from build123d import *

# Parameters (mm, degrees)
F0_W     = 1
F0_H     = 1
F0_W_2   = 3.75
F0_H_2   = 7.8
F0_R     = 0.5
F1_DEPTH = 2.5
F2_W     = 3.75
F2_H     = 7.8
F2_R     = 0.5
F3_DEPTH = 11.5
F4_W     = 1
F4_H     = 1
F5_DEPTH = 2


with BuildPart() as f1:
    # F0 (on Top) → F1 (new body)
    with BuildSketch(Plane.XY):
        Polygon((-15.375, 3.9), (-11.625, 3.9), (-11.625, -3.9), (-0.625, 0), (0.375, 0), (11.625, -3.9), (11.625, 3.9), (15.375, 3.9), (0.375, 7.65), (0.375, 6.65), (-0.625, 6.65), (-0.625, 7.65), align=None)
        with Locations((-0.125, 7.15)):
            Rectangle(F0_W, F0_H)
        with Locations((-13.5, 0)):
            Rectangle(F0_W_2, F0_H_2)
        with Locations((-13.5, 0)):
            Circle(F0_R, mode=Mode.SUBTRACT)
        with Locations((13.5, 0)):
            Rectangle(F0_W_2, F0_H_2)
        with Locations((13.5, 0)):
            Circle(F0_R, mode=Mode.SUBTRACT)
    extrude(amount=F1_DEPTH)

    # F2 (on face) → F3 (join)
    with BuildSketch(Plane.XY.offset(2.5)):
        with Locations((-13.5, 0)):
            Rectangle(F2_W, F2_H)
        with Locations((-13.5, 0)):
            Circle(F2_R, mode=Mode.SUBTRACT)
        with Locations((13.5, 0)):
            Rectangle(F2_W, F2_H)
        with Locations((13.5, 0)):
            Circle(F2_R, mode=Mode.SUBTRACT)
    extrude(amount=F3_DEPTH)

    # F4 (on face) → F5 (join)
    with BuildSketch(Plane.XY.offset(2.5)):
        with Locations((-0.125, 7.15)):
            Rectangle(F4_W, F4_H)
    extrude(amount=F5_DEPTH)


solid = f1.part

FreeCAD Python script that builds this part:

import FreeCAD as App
import Part
import Sketcher
from FreeCAD import Vector
Q = App.Units.Quantity

doc = App.newDocument("Part")
body = doc.addObject("PartDesign::Body", "Body")

sketch1 = body.newObject("Sketcher::SketchObject", "Sketch")
sketch1.AttachmentSupport = (doc.getObject("XY_Plane"), [""])
sketch1.MapMode = "FlatFace"
sketch1.addGeometry([
    Part.LineSegment(Vector(-11.625, -3.9, 0), Vector(-0.625, 0, 0)),
    Part.LineSegment(Vector(-0.625, 0, 0), Vector(0.375, 0, 0)),
    Part.LineSegment(Vector(0.375, 0, 0), Vector(11.625, -3.9, 0)),
    Part.LineSegment(Vector(11.625, -3.9, 0), Vector(15.375, -3.9, 0)),
    Part.LineSegment(Vector(15.375, -3.9, 0), Vector(15.375, 3.9, 0)),
    Part.LineSegment(Vector(15.375, 3.9, 0), Vector(0.375, 7.65, 0)),
    Part.LineSegment(Vector(0.375, 7.65, 0), Vector(-0.625, 7.65, 0)),
    Part.LineSegment(Vector(-0.625, 7.65, 0), Vector(-15.375, 3.9, 0)),
    Part.LineSegment(Vector(-15.375, 3.9, 0), Vector(-15.375, -3.9, 0)),
    Part.LineSegment(Vector(-15.375, -3.9, 0), Vector(-11.625, -3.9, 0)),
    Part.Circle(Vector(-13.5, 0, 0), Vector(0, 0, 1), 0.5),
    Part.Circle(Vector(13.5, 0, 0), Vector(0, 0, 1), 0.5),
], False)
sketch1.addConstraint([
    Sketcher.Constraint("Coincident", 0, 2, 1, 1),
    Sketcher.Constraint("Coincident", 1, 2, 2, 1),
    Sketcher.Constraint("Coincident", 2, 2, 3, 1),
    Sketcher.Constraint("Coincident", 3, 2, 4, 1),
    Sketcher.Constraint("Coincident", 4, 2, 5, 1),
    Sketcher.Constraint("Coincident", 5, 2, 6, 1),
    Sketcher.Constraint("Coincident", 6, 2, 7, 1),
    Sketcher.Constraint("Coincident", 7, 2, 8, 1),
    Sketcher.Constraint("Coincident", 8, 2, 9, 1),
    Sketcher.Constraint("Coincident", 9, 2, 0, 1),
    Sketcher.Constraint("Horizontal", 1),
    Sketcher.Constraint("Horizontal", 3),
    Sketcher.Constraint("Vertical", 4),
    Sketcher.Constraint("Horizontal", 6),
    Sketcher.Constraint("Vertical", 8),
    Sketcher.Constraint("Horizontal", 9),
    Sketcher.Constraint("Equal", 10, 11),
    Sketcher.Constraint("Symmetric", 10, 3, 11, 3, -1, 1),
    Sketcher.Constraint("Symmetric", 3, 2, 7, 2, -1, 1),
    Sketcher.Constraint("Symmetric", 2, 2, 9, 2, -2),
    Sketcher.Constraint("PointOnObject", 10, 3, -1),
    Sketcher.Constraint("PointOnObject", 0, 2, -1),
    Sketcher.Constraint("Horizontal", 4, 2, 7, 2),
    Sketcher.Constraint("Vertical", 1, 2, 5, 2),
    Sketcher.Constraint("Vertical", 0, 2, 6, 2),
    Sketcher.Constraint("Diameter", 10, Q("1 mm")),
    Sketcher.Constraint("DistanceX", 1, 1, 1, 2, Q("1 mm")),
    Sketcher.Constraint("DistanceY", 4, 1, 4, 2, Q("7.8 mm")),
    Sketcher.Constraint("DistanceX", 10, 3, 11, 3, Q("27 mm")),
    Sketcher.Constraint("DistanceX", 1, 2, 3, 2, Q("15 mm")),
    Sketcher.Constraint("DistanceX", 9, 2, 0, 2, Q("11 mm")),
    Sketcher.Constraint("DistanceX", 3, 1, 3, 2, Q("3.75 mm")),
    Sketcher.Constraint("DistanceY", -1, 1, 5, 2, Q("7.65 mm")),
])
pad1 = body.newObject("PartDesign::Pad", "Pad")
pad1.Profile = sketch1
pad1.Length = 2.5

sketch2 = body.newObject("Sketcher::SketchObject", "Sketch001")
sketch2.AttachmentSupport = (doc.getObject("XY_Plane"), [""])
sketch2.MapMode = "FlatFace"
sketch2.AttachmentOffset = App.Placement(Vector(0, 0, 2.5), App.Rotation())
sketch2.addGeometry([
    Part.LineSegment(Vector(-15.375, 3.9, 0), Vector(-15.375, -3.9, 0)),
    Part.LineSegment(Vector(-15.375, -3.9, 0), Vector(-11.625, -3.9, 0)),
    Part.LineSegment(Vector(-11.625, -3.9, 0), Vector(-11.625, 3.9, 0)),
    Part.LineSegment(Vector(-11.625, 3.9, 0), Vector(-15.375, 3.9, 0)),
    Part.Circle(Vector(-13.5, 0, 0), Vector(0, 0, 1), 0.5),
    Part.LineSegment(Vector(11.625, 3.9, 0), Vector(11.625, -3.9, 0)),
    Part.LineSegment(Vector(11.625, -3.9, 0), Vector(15.375, -3.9, 0)),
    Part.LineSegment(Vector(15.375, -3.9, 0), Vector(15.375, 3.9, 0)),
    Part.LineSegment(Vector(15.375, 3.9, 0), Vector(11.625, 3.9, 0)),
    Part.Circle(Vector(13.5, 0, 0), Vector(0, 0, 1), 0.5),
], False)
sketch2.addConstraint([
    Sketcher.Constraint("Coincident", 0, 2, 1, 1),
    Sketcher.Constraint("Coincident", 1, 2, 2, 1),
    Sketcher.Constraint("Coincident", 2, 2, 3, 1),
    Sketcher.Constraint("Coincident", 3, 2, 0, 1),
    Sketcher.Constraint("Coincident", 5, 2, 6, 1),
    Sketcher.Constraint("Coincident", 6, 2, 7, 1),
    Sketcher.Constraint("Coincident", 7, 2, 8, 1),
    Sketcher.Constraint("Coincident", 8, 2, 5, 1),
    Sketcher.Constraint("Vertical", 0),
    Sketcher.Constraint("Horizontal", 1),
    Sketcher.Constraint("Vertical", 2),
    Sketcher.Constraint("Horizontal", 3),
    Sketcher.Constraint("Vertical", 5),
    Sketcher.Constraint("Horizontal", 6),
    Sketcher.Constraint("Vertical", 7),
    Sketcher.Constraint("Horizontal", 8),
    Sketcher.Constraint("Equal", 4, 9),
    Sketcher.Constraint("Symmetric", 4, 3, 9, 3, -1, 1),
    Sketcher.Constraint("Symmetric", 2, 2, 5, 2, -1, 1),
    Sketcher.Constraint("Symmetric", 0, 2, 7, 2, -1, 1),
    Sketcher.Constraint("PointOnObject", 4, 3, -1),
    Sketcher.Constraint("Horizontal", 1, 2, 5, 2),
    Sketcher.Constraint("Diameter", 4, Q("1 mm")),
    Sketcher.Constraint("DistanceY", 0, 2, 0, 1, Q("7.8 mm")),
    Sketcher.Constraint("DistanceX", 4, 3, 9, 3, Q("27 mm")),
    Sketcher.Constraint("DistanceX", 0, 2, 5, 2, Q("27 mm")),
    Sketcher.Constraint("DistanceX", 1, 1, 1, 2, Q("3.75 mm")),
])
pad2 = body.newObject("PartDesign::Pad", "Pad001")
pad2.Profile = sketch2
pad2.Length = 11.5

sketch3 = body.newObject("Sketcher::SketchObject", "Sketch002")
sketch3.AttachmentSupport = (doc.getObject("XY_Plane"), [""])
sketch3.MapMode = "FlatFace"
sketch3.AttachmentOffset = App.Placement(Vector(0, 0, 2.5), App.Rotation())
sketch3.addGeometry([
    Part.LineSegment(Vector(-0.625, 7.65, 0), Vector(-0.625, 6.65, 0)),
    Part.LineSegment(Vector(-0.625, 6.65, 0), Vector(0.375, 6.65, 0)),
    Part.LineSegment(Vector(0.375, 6.65, 0), Vector(0.375, 7.65, 0)),
    Part.LineSegment(Vector(0.375, 7.65, 0), Vector(-0.625, 7.65, 0)),
], False)
sketch3.addConstraint([
    Sketcher.Constraint("Coincident", 0, 2, 1, 1),
    Sketcher.Constraint("Coincident", 1, 2, 2, 1),
    Sketcher.Constraint("Coincident", 2, 2, 3, 1),
    Sketcher.Constraint("Coincident", 3, 2, 0, 1),
    Sketcher.Constraint("Vertical", 0),
    Sketcher.Constraint("Horizontal", 1),
    Sketcher.Constraint("Vertical", 2),
    Sketcher.Constraint("Horizontal", 3),
    Sketcher.Constraint("Equal", 3, 0),
    Sketcher.Constraint("DistanceX", 1, 1, 1, 2, Q("1 mm")),
    Sketcher.Constraint("DistanceY", -1, 1, 0, 2, Q("6.65 mm")),
    Sketcher.Constraint("DistanceX", 0, 2, -1, 1, Q("0.625 mm")),
])
pad3 = body.newObject("PartDesign::Pad", "Pad002")
pad3.Profile = sketch3
pad3.Length = 2

doc.recompute()
